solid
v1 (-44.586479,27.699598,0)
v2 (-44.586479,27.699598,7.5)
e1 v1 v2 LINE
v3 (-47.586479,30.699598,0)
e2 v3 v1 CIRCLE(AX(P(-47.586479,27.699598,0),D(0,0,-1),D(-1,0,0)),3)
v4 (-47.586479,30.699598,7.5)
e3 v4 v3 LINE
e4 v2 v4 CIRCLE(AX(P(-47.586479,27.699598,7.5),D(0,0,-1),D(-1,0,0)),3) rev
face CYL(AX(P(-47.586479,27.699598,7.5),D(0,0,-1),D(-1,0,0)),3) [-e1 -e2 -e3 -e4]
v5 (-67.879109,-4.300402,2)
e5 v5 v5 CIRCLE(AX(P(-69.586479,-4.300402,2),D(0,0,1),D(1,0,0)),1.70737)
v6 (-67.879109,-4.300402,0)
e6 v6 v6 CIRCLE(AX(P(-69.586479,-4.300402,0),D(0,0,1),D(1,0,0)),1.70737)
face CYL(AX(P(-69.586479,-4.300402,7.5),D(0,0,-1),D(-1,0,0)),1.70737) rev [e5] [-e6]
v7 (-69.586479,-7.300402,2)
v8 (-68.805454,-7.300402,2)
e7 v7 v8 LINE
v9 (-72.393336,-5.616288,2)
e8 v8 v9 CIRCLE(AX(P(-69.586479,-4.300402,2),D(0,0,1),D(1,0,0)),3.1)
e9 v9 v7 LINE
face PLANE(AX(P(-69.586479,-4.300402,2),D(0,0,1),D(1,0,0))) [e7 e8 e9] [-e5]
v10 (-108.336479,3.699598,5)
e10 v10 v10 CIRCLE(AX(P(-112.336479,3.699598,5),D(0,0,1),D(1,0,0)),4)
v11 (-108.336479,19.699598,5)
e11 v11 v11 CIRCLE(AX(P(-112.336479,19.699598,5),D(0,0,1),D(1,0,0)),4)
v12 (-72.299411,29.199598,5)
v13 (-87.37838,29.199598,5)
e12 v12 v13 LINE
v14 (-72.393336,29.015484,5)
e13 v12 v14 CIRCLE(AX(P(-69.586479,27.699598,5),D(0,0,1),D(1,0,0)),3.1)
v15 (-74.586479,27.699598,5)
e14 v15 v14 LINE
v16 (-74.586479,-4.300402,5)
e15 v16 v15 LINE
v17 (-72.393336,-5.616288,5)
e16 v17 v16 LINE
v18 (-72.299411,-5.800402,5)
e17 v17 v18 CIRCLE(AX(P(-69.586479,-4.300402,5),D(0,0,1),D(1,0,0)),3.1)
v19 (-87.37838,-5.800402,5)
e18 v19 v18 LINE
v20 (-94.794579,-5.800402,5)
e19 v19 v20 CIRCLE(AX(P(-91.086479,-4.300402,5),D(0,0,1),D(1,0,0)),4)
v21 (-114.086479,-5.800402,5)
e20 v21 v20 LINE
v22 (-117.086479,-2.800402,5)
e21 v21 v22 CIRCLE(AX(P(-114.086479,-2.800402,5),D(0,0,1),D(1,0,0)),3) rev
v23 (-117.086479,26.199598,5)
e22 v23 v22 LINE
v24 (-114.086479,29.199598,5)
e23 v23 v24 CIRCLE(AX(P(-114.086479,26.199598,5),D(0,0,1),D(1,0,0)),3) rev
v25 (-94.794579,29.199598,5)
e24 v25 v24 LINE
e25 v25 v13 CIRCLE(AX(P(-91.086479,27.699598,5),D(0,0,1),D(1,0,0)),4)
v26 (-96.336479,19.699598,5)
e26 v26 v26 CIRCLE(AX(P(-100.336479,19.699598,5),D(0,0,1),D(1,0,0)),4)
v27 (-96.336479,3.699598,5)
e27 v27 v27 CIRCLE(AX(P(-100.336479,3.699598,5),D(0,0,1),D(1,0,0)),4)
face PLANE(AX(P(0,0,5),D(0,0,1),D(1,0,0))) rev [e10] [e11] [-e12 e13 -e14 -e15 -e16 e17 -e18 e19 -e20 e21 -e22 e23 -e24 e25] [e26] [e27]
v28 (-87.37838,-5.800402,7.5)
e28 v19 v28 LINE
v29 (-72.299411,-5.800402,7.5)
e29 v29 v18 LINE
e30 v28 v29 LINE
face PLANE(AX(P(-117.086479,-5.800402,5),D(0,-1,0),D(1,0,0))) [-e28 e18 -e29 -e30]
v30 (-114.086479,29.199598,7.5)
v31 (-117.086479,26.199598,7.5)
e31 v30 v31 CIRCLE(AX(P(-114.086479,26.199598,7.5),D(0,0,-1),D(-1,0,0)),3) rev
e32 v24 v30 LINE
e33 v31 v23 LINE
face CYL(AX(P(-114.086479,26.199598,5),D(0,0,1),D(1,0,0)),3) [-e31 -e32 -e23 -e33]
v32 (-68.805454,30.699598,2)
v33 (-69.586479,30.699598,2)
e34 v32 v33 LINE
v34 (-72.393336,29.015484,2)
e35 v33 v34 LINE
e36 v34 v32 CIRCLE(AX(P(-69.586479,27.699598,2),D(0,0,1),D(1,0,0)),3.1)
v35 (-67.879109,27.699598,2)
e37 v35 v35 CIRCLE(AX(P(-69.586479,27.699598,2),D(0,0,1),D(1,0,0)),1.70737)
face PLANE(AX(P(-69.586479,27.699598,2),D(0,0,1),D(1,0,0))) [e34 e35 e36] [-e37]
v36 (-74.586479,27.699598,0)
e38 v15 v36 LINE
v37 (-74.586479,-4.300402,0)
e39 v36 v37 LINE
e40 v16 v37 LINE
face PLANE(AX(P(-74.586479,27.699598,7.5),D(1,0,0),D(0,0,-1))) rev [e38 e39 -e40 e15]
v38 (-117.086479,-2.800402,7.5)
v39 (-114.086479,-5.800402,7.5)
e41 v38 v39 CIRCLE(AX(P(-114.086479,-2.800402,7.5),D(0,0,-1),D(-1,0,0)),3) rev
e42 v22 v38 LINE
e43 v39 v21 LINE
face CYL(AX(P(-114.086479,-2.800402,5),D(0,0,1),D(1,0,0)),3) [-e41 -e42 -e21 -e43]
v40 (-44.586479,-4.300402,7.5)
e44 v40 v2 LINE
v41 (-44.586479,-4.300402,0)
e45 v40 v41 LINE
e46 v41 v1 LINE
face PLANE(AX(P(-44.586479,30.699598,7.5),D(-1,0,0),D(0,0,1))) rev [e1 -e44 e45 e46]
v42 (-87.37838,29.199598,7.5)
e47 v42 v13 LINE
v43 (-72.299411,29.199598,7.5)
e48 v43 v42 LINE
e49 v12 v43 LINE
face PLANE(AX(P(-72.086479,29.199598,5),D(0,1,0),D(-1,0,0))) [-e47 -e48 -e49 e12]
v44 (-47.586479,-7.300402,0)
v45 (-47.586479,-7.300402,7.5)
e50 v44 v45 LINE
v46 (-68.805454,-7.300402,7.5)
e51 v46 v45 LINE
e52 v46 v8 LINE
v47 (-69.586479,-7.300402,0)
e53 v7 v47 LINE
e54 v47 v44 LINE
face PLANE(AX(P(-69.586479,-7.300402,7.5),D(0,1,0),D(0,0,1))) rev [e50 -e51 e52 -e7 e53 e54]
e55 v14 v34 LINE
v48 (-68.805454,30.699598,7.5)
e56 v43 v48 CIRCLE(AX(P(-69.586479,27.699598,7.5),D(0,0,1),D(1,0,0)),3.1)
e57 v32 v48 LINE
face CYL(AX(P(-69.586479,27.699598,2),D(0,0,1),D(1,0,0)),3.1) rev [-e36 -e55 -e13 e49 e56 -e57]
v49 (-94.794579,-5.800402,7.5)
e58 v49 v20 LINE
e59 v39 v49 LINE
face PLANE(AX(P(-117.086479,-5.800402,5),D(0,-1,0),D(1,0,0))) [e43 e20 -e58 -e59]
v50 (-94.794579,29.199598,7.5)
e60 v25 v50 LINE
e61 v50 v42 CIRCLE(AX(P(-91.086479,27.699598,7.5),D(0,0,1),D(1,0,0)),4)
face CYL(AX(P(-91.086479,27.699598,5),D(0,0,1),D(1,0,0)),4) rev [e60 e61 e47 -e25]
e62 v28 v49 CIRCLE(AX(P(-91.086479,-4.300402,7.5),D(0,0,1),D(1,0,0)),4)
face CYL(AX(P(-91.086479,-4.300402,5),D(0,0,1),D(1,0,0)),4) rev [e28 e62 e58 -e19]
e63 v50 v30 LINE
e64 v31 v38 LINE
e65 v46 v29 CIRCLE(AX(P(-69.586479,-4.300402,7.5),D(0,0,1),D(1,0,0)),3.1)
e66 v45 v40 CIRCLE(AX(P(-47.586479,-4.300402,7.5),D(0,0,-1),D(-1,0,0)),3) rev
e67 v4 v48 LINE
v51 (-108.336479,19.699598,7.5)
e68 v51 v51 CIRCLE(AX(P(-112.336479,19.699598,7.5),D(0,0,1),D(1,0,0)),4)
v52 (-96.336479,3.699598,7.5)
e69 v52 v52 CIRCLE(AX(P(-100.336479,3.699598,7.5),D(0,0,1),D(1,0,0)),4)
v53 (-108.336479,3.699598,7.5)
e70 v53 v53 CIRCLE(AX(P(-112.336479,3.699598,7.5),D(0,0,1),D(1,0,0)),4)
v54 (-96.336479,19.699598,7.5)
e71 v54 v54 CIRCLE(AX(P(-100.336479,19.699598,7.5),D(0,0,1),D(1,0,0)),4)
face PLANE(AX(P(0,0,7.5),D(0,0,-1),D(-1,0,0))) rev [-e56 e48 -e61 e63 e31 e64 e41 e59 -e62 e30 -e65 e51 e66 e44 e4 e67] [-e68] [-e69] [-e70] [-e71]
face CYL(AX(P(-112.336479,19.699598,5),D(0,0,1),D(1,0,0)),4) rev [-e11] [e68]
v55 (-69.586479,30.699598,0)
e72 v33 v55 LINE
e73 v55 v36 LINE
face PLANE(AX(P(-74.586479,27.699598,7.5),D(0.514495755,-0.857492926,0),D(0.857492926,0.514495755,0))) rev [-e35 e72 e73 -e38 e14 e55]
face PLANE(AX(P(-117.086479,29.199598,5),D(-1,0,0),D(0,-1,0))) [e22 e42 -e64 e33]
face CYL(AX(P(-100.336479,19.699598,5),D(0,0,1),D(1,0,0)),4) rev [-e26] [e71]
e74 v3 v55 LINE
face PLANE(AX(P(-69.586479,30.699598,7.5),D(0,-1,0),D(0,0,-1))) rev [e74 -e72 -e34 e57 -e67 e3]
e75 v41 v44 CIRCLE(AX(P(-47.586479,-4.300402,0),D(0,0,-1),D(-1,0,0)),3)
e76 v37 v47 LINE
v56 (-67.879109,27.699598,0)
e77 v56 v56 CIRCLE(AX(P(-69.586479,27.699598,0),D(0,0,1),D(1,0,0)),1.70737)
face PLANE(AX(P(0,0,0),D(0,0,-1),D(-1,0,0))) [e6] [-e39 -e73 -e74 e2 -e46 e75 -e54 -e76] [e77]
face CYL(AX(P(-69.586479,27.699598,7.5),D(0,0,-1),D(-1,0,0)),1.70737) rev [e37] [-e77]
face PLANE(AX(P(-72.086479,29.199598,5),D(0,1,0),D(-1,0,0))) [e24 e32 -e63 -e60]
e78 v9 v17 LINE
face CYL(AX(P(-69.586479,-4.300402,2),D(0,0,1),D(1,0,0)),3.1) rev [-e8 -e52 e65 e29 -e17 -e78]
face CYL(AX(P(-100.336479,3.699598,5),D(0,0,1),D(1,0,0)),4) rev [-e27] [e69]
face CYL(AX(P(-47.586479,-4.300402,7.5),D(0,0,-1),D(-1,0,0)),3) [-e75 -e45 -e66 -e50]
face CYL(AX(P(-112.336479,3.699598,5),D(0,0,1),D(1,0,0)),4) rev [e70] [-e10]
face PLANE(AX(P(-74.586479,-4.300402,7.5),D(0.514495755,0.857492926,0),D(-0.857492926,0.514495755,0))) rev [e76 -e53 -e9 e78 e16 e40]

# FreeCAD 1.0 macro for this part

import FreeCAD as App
import Part
import Sketcher


def edges_at(feature, points):
    """Names of the edges that pass closest to the given points."""
    edges = feature.Shape.Edges
    near = lambda p: min(range(len(edges)), key=lambda i: edges[i].distToShape(Part.Vertex(*p))[0])
    return sorted({f"Edge{near(p) + 1}" for p in points})

doc = App.newDocument("Part")
body = doc.addObject("PartDesign::Body", "Body")

sketch1 = doc.addObject("Sketcher::SketchObject", "Sketch")
body.addObject(sketch1)
sketch1.AttachmentSupport = (doc.XY_Plane, [""])
sketch1.MapMode = "FlatFace"
sketch1.addGeometry([
    Part.LineSegment(App.Vector(-44.6, 30.7, 0), App.Vector(-69.6, 30.7, 0)),
    Part.LineSegment(App.Vector(-69.6, 30.7, 0), App.Vector(-74.6, 27.7, 0)),
    Part.LineSegment(App.Vector(-74.6, 27.7, 0), App.Vector(-74.6, -4.3, 0)),
    Part.LineSegment(App.Vector(-74.6, -4.3, 0), App.Vector(-69.6, -7.3, 0)),
    Part.LineSegment(App.Vector(-69.6, -7.3, 0), App.Vector(-44.6, -7.3, 0)),
    Part.LineSegment(App.Vector(-44.6, -7.3, 0), App.Vector(-44.6, 30.7, 0)),
    Part.Circle(App.Vector(-69.6, -4.3, 0), App.Vector(0, 0, 1), 1.7),
    Part.Circle(App.Vector(-69.6, 27.7, 0), App.Vector(0, 0, 1), 1.7),
], False)
sketch1.addConstraint([
    Sketcher.Constraint("Coincident", 0, 2, 1, 1),
    Sketcher.Constraint("Coincident", 1, 2, 2, 1),
    Sketcher.Constraint("Coincident", 2, 2, 3, 1),
    Sketcher.Constraint("Coincident", 3, 2, 4, 1),
    Sketcher.Constraint("Coincident", 4, 2, 5, 1),
    Sketcher.Constraint("Coincident", 5, 2, 0, 1),
    Sketcher.Constraint("Horizontal", 0),
    Sketcher.Constraint("Vertical", 2),
    Sketcher.Constraint("Horizontal", 4),
    Sketcher.Constraint("Vertical", 5),
    Sketcher.Constraint("Equal", 6, 7),
    Sketcher.Constraint("Horizontal", 7, 3, 1, 2),
    Sketcher.Constraint("Horizontal", 6, 3, 2, 2),
    Sketcher.Constraint("Vertical", 6, 3, 7, 3),
    Sketcher.Constraint("Vertical", 7, 3, 0, 2),
    Sketcher.Constraint("Vertical", 0, 2, 3, 2),
    Sketcher.Constraint("Equal", 1, 3),
    Sketcher.Constraint("DistanceX", 0, 2, 0, 1, 25.0),
    Sketcher.Constraint("DistanceY", 2, 2, 2, 1, 32.0),
    Sketcher.Constraint("DistanceY", 5, 1, 5, 2, 38.0),
    Sketcher.Constraint("DistanceX", 1, 2, 7, 3, 5.0),
    Sketcher.Constraint("Diameter", 6, 3.41474),
    Sketcher.Constraint("DistanceX", 6, 3, -1, 1, 69.586479),
    Sketcher.Constraint("DistanceY", 6, 3, -1, 1, 4.300402),
])
pad1 = doc.addObject("PartDesign::Pad", "Pad")
body.addObject(pad1)
pad1.Profile = sketch1
pad1.Length = 7.5

sketch2 = doc.addObject("Sketcher::SketchObject", "Sketch001")
body.addObject(sketch2)
sketch2.AttachmentSupport = (doc.XY_Plane, [""])
sketch2.MapMode = "FlatFace"
sketch2.AttachmentOffset = App.Placement(App.Vector(0, 0, 7.5), App.Rotation())
sketch2.addGeometry([
    Part.LineSegment(App.Vector(-72.1, 29.2, 0), App.Vector(-117.1, 29.2, 0)),
    Part.LineSegment(App.Vector(-117.1, 29.2, 0), App.Vector(-117.1, -5.8, 0)),
    Part.LineSegment(App.Vector(-117.1, -5.8, 0), App.Vector(-72.1, -5.8, 0)),
    Part.LineSegment(App.Vector(-72.1, -5.8, 0), App.Vector(-74.6, -4.3, 0)),
    Part.LineSegment(App.Vector(-74.6, -4.3, 0), App.Vector(-74.6, 27.7, 0)),
    Part.LineSegment(App.Vector(-74.6, 27.7, 0), App.Vector(-72.1, 29.2, 0)),
], False)
sketch2.addConstraint([
    Sketcher.Constraint("Coincident", 0, 2, 1, 1),
    Sketcher.Constraint("Coincident", 1, 2, 2, 1),
    Sketcher.Constraint("Coincident", 2, 2, 3, 1),
    Sketcher.Constraint("Coincident", 3, 2, 4, 1),
    Sketcher.Constraint("Coincident", 4, 2, 5, 1),
    Sketcher.Constraint("Coincident", 5, 2, 0, 1),
    Sketcher.Constraint("Horizontal", 0),
    Sketcher.Constraint("Vertical", 1),
    Sketcher.Constraint("Horizontal", 2),
    Sketcher.Constraint("Vertical", 4),
    Sketcher.Constraint("Vertical", 2, 2, 5, 2),
    Sketcher.Constraint("Equal", 3, 5),
    Sketcher.Constraint("DistanceX", 0, 2, 0, 1, 45.0),
    Sketcher.Constraint("DistanceY", 1, 2, 1, 1, 35.0),
    Sketcher.Constraint("DistanceY", 4, 1, 4, 2, 32.0),
    Sketcher.Constraint("DistanceX", 3, 2, 2, 2, 2.5),
    Sketcher.Constraint("DistanceX", 0, 2, -1, 1, 117.086479),
    Sketcher.Constraint("DistanceY", -1, 1, 0, 2, 29.199598),
])
pad2 = doc.addObject("PartDesign::Pad", "Pad001")
body.addObject(pad2)
pad2.Profile = sketch2
pad2.Length = 2.5
pad2.Reversed = True

sketch3 = doc.addObject("Sketcher::SketchObject", "Sketch002")
body.addObject(sketch3)
sketch3.AttachmentSupport = (doc.XY_Plane, [""])
sketch3.MapMode = "FlatFace"
sketch3.AttachmentOffset = App.Placement(App.Vector(0, 0, 7.5), App.Rotation())
sketch3.addGeometry([
    Part.Circle(App.Vector(-91.1, -4.3, 0), App.Vector(0, 0, 1), 4),
    Part.Circle(App.Vector(-91.1, 27.7, 0), App.Vector(0, 0, 1), 4),
    Part.Circle(App.Vector(-121.6, -4.3, 0), App.Vector(0, 0, 1), 3.5),
    Part.Circle(App.Vector(-121.6, 27.7, 0), App.Vector(0, 0, 1), 3.5),
    Part.Circle(App.Vector(-100.3, 19.7, 0), App.Vector(0, 0, 1), 4),
    Part.Circle(App.Vector(-112.3, 19.7, 0), App.Vector(0, 0, 1), 4),
    Part.Circle(App.Vector(-112.3, 3.7, 0), App.Vector(0, 0, 1), 4),
    Part.Circle(App.Vector(-100.3, 3.7, 0), App.Vector(0, 0, 1), 4),
], False)
sketch3.addConstraint([
    Sketcher.Constraint("Equal", 0, 1),
    Sketcher.Constraint("Equal", 2, 3),
    Sketcher.Constraint("Equal", 1, 4),
    Sketcher.Constraint("Equal", 4, 5),
    Sketcher.Constraint("Equal", 5, 6),
    Sketcher.Constraint("Equal", 6, 7),
    Sketcher.Constraint("Horizontal", 0, 3, 2, 3),
    Sketcher.Constraint("Horizontal", 1, 3, 3, 3),
    Sketcher.Constraint("Horizontal", 4, 3, 5, 3),
    Sketcher.Constraint("Horizontal", 6, 3, 7, 3),
    Sketcher.Constraint("Vertical", 0, 3, 1, 3),
    Sketcher.Constraint("Vertical", 2, 3, 3, 3),
    Sketcher.Constraint("Vertical", 5, 3, 6, 3),
    Sketcher.Constraint("Vertical", 4, 3, 7, 3),
    Sketcher.Constraint("Diameter", 0, 8.0),
    Sketcher.Constraint("Diameter", 2, 7.0),
    Sketcher.Constraint("DistanceY", 0, 3, 1, 3, 32.0),
    Sketcher.Constraint("DistanceY", 4, 3, 1, 3, 8.0),
    Sketcher.Constraint("DistanceX", 5, 3, 4, 3, 12.0),
    Sketcher.Constraint("DistanceY", 2, 3, 6, 3, 8.0),
    Sketcher.Constraint("DistanceX", 2, 3, 0, 3, 30.5),
    Sketcher.Constraint("DistanceX", 4, 3, 1, 3, 9.25),
    Sketcher.Constraint("DistanceX", 0, 3, -1, 1, 91.086479),
    Sketcher.Constraint("DistanceY", 0, 3, -1, 1, 4.300402),
])
pocket1 = doc.addObject("PartDesign::Pocket", "Pocket")
body.addObject(pocket1)
pocket1.Profile = sketch3
pocket1.Length = 2.5
doc.recompute()

fillet = doc.addObject("PartDesign::Fillet", "Fillet")
body.addObject(fillet)
fillet.Base = (pocket1, edges_at(pocket1, [
    (-44.586, 30.7, 3.75),
    (-44.586, -7.3, 3.75),
    (-117.086, -5.8, 6.25),
    (-117.086, 29.2, 6.25),
]))
fillet.Radius = 3

sketch4 = doc.addObject("Sketcher::SketchObject", "Sketch003")
body.addObject(sketch4)
sketch4.AttachmentSupport = (doc.XY_Plane, [""])
sketch4.MapMode = "FlatFace"
sketch4.AttachmentOffset = App.Placement(App.Vector(0, 0, 7.5), App.Rotation())
sketch4.addGeometry([
    Part.Circle(App.Vector(-69.6, 27.7, 0), App.Vector(0, 0, 1), 3.1),
    Part.Circle(App.Vector(-69.6, -4.3, 0), App.Vector(0, 0, 1), 3.1),
], False)
sketch4.addConstraint([
    Sketcher.Constraint("Equal", 0, 1),
    Sketcher.Constraint("Vertical", 0, 3, 1, 3),
    Sketcher.Constraint("Diameter", 0, 6.2),
    Sketcher.Constraint("DistanceY", 1, 3, 0, 3, 32.0),
    Sketcher.Constraint("DistanceX", 0, 3, -1, 1, 69.586479),
    Sketcher.Constraint("DistanceY", -1, 1, 0, 3, 27.699598),
])
pocket2 = doc.addObject("PartDesign::Pocket", "Pocket001")
body.addObject(pocket2)
pocket2.Profile = sketch4
pocket2.Length = 5.5

doc.recompute()
